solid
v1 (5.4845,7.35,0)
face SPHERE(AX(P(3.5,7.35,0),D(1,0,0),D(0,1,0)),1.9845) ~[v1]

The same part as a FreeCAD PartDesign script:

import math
import FreeCAD as App
import Part
import Sketcher
from FreeCAD import Vector

doc = App.newDocument("Part")
params = doc.addObject("Spreadsheet::Sheet", "Params")
for row, (alias, value) in enumerate([
    ("revolution_angle", "360 deg"),
], start=1):
    params.set(f"A{row}", alias)
    params.set(f"B{row}", "=" + value)
    params.setAlias(f"B{row}", alias)

body = doc.addObject("PartDesign::Body", "Body")

# Sketch on XY plane
sketch1 = body.newObject("Sketcher::SketchObject", "Sketch")
sketch1.AttachmentSupport = (doc.getObject("XY_Plane"), [""])
sketch1.MapMode = "FlatFace"
sketch1.addGeometry(Part.LineSegment(Vector(1.5155, 7.35, 0), Vector(5.4845, 7.35, 0)), False)
sketch1.addGeometry(Part.ArcOfCircle(Part.Circle(Vector(3.5, 7.35, 0), Vector(0, 0, 1), 1.9845), math.radians(0), math.radians(180)), False)
sketch1.addGeometry(Part.LineSegment(Vector(5.4845, 7.35, 0), Vector(1.5155, 7.35, 0)), True)  # axis
sketch1.addConstraint(Sketcher.Constraint("Coincident", 0, 1, 1, 2))
sketch1.addConstraint(Sketcher.Constraint("Coincident", 1, 1, 0, 2))
sketch1.addConstraint(Sketcher.Constraint("Horizontal", 0))
sketch1.addConstraint(Sketcher.Constraint("Horizontal", 2))
sketch1.addConstraint(Sketcher.Constraint("Coincident", 2, 1, 1, 1))
sketch1.addConstraint(Sketcher.Constraint("Horizontal", 1, 3, 0, 1))
sketch1.addConstraint(Sketcher.Constraint("Equal", 0, 2))
sketch1.addConstraint(Sketcher.Constraint("DistanceX", -1, 1, 1, 3, 3.5))
sketch1.addConstraint(Sketcher.Constraint("Radius", 1, 1.9845))
sketch1.addConstraint(Sketcher.Constraint("DistanceY", -1, 1, 1, 3, 7.35))
revolution = body.newObject("PartDesign::Revolution", "Revolution")
revolution.Profile = sketch1
revolution.ReferenceAxis = (sketch1, ["Axis0"])
revolution.setExpression("Angle", "Params.revolution_angle")

doc.recompute()
